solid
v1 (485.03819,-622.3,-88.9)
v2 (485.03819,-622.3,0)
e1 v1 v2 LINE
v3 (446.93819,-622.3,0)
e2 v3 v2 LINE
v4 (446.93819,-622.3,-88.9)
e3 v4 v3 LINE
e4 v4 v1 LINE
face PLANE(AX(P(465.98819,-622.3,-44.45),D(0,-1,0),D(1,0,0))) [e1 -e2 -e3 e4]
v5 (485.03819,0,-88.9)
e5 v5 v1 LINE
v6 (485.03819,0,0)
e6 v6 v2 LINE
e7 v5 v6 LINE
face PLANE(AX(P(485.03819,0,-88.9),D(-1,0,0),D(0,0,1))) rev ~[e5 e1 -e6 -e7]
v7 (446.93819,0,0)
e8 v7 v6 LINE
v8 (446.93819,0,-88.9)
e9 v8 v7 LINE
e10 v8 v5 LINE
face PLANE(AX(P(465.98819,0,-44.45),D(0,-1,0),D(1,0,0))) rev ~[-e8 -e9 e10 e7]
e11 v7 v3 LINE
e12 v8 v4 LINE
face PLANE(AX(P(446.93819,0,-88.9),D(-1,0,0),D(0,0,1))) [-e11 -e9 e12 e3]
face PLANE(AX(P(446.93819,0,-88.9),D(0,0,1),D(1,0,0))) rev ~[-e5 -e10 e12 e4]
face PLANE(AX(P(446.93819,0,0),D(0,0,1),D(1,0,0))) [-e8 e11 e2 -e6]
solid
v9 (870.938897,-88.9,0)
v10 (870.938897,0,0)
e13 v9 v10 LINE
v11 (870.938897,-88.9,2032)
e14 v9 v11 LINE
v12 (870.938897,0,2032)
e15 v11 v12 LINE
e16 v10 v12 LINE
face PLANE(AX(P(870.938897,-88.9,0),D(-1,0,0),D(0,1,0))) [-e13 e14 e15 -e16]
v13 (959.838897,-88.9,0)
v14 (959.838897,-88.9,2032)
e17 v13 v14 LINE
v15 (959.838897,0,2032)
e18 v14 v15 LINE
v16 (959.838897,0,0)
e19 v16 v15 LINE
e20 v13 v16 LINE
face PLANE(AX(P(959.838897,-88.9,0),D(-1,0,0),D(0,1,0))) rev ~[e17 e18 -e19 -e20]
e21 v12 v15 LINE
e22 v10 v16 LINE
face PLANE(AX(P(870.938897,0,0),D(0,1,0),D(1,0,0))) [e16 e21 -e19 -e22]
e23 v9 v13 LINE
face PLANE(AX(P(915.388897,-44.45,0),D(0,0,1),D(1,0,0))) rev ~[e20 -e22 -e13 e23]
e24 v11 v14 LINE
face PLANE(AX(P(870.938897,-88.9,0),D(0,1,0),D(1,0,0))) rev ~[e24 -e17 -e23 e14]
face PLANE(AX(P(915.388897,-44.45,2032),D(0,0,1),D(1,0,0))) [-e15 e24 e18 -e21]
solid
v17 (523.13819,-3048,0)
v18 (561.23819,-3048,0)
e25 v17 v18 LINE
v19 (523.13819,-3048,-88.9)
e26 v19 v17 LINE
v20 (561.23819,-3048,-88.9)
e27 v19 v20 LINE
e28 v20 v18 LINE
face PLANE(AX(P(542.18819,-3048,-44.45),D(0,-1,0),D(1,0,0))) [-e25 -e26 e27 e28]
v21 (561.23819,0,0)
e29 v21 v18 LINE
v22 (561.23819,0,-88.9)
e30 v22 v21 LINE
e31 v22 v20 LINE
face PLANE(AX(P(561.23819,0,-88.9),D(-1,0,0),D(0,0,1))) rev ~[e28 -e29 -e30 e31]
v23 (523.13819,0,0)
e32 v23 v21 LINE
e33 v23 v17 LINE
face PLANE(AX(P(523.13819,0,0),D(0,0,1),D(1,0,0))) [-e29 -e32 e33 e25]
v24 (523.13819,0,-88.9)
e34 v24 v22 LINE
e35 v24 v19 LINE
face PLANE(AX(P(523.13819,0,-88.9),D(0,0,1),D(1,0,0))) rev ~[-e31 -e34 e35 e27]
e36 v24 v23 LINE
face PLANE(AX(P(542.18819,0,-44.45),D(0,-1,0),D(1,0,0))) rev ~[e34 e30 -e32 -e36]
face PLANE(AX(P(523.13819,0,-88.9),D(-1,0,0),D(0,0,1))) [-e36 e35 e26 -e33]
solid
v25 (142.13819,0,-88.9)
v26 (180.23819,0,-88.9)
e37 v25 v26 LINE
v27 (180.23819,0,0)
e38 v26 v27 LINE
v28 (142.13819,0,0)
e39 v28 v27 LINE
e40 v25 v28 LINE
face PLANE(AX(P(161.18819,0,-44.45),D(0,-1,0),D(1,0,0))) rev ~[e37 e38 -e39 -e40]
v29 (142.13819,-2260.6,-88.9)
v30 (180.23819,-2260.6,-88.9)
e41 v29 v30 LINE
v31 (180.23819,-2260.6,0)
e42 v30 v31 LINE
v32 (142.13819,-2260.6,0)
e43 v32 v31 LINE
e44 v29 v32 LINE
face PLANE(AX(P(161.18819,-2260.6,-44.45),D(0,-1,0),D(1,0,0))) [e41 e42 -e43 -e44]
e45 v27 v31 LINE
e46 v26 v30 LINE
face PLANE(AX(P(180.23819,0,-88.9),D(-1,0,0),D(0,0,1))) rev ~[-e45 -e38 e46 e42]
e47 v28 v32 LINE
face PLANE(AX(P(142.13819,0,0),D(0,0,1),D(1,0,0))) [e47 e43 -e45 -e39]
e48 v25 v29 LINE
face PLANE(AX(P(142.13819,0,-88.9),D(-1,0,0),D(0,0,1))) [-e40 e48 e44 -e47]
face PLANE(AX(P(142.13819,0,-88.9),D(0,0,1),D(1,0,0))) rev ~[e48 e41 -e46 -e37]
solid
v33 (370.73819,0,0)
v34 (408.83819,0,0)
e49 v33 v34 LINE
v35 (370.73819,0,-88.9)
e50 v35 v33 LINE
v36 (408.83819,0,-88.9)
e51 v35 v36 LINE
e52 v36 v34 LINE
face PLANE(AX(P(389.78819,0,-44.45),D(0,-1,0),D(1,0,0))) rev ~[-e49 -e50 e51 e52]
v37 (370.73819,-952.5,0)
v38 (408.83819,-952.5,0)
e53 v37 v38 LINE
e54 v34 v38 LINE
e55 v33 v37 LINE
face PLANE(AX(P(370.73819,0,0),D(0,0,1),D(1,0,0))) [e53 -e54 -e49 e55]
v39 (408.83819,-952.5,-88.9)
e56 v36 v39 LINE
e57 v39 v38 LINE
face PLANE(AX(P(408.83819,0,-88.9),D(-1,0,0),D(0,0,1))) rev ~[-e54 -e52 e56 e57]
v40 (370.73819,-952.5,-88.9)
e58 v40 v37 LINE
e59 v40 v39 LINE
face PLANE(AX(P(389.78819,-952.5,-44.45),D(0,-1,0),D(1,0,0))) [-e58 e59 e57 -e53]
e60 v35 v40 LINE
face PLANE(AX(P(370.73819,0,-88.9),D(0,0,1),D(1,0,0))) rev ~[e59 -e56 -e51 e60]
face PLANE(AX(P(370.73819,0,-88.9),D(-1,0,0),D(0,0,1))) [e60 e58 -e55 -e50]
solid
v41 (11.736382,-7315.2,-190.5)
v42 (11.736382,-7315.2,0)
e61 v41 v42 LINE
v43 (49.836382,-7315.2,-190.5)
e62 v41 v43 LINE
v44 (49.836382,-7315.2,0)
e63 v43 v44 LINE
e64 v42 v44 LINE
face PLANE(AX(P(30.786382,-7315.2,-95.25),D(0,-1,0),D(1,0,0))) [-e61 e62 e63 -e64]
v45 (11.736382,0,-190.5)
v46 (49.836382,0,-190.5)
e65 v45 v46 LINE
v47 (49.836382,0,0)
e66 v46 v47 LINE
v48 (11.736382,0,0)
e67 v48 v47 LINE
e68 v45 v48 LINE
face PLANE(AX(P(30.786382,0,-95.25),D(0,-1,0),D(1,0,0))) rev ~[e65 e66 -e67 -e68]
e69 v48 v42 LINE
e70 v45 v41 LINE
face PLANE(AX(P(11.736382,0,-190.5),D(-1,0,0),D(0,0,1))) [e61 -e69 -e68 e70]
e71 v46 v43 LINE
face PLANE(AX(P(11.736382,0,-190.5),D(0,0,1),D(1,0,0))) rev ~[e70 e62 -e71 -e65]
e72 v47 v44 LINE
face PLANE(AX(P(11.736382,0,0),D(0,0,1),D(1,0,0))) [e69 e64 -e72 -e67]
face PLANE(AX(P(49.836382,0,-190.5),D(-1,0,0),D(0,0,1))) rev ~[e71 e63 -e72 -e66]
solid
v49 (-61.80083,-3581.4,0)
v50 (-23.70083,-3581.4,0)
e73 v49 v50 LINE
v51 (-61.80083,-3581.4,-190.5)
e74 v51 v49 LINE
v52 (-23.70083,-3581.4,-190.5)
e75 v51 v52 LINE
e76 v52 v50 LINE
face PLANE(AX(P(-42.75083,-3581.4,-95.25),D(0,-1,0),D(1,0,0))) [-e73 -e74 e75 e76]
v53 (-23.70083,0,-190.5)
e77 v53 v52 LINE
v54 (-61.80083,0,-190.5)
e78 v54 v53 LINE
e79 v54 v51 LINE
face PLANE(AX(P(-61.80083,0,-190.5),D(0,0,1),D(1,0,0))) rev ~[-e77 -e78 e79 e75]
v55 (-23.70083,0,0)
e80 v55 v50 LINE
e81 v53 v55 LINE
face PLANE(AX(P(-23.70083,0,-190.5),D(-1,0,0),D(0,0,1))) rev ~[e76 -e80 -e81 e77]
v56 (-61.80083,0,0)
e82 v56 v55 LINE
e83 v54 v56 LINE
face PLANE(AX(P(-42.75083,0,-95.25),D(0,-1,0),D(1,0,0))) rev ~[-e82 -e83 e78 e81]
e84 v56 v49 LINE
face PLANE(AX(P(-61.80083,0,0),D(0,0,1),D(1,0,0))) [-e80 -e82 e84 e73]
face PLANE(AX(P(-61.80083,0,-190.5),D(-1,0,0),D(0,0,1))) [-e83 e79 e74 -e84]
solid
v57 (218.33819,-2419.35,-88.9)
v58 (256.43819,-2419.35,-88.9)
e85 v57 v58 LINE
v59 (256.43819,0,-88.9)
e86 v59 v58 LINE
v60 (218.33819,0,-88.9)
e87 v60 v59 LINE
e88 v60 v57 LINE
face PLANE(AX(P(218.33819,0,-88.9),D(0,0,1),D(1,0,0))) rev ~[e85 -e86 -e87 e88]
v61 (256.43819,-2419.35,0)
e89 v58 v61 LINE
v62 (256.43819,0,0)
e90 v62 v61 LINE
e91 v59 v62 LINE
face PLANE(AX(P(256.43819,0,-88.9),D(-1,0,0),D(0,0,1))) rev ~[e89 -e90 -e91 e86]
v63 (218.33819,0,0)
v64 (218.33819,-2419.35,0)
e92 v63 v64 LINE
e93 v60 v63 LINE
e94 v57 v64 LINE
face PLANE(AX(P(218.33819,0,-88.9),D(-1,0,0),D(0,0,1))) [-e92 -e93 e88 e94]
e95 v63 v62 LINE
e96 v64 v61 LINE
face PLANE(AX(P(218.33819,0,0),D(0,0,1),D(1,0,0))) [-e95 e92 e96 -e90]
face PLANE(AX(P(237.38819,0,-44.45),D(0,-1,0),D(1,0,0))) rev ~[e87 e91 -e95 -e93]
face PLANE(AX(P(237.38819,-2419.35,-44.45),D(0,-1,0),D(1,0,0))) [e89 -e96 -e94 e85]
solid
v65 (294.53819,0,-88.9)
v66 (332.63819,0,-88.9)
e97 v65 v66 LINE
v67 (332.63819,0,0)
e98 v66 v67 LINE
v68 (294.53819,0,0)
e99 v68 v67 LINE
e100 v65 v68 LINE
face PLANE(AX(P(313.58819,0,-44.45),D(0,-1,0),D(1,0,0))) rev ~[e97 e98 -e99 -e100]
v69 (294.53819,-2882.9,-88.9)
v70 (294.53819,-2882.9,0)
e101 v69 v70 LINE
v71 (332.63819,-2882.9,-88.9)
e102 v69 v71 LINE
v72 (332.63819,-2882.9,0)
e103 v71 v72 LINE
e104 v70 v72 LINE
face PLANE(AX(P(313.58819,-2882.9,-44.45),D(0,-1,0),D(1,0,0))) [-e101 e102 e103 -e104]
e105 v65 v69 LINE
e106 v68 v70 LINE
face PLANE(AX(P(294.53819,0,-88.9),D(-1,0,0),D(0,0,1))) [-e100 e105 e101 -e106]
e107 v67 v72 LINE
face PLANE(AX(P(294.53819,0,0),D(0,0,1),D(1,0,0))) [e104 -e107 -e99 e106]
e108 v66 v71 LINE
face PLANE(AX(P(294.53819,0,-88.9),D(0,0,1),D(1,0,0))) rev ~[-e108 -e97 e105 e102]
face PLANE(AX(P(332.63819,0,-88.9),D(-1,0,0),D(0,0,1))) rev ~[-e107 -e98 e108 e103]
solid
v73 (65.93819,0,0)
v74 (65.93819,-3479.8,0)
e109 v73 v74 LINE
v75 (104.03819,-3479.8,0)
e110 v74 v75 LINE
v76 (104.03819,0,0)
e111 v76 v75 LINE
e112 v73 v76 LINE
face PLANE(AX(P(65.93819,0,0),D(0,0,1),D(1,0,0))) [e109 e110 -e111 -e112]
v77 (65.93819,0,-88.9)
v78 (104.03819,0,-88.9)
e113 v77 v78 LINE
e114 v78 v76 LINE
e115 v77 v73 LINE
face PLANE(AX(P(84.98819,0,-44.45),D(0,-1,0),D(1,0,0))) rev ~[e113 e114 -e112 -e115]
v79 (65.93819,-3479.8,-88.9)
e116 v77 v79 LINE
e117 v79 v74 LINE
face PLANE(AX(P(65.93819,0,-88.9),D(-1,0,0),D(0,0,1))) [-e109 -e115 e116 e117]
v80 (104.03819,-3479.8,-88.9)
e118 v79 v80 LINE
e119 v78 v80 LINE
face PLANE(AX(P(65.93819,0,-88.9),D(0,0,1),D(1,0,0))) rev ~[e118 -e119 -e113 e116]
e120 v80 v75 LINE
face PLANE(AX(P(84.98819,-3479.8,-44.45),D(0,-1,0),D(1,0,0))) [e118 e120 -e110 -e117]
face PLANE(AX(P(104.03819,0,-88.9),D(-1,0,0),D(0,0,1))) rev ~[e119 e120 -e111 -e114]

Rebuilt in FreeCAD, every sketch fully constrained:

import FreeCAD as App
import Part
import Sketcher
Q = App.Units.Quantity


def add_polygon(sketch, points):
    """Adds a closed chain of lines whose ends are joined by coincident constraints."""
    first, n = sketch.GeometryCount, len(points)
    for a, b in zip(points, points[1:] + points[:1]):
        sketch.addGeometry(Part.LineSegment(App.Vector(*a, 0), App.Vector(*b, 0)), False)
    for i in range(n):
        sketch.addConstraint(Sketcher.Constraint("Coincident", first + i, 2, first + (i + 1) % n, 1))

doc = App.newDocument("Part")
body = doc.addObject("PartDesign::Body", "Body")

sketch1 = body.newObject("Sketcher::SketchObject", "Sketch")
sketch1.AttachmentSupport = (doc.getObject("XZ_Plane"), [""])
sketch1.MapMode = "FlatFace"
add_polygon(sketch1, [(-62, 0), (-62, -190), (-24, -190), (-24, 0)])
sketch1.addConstraint([
    Sketcher.Constraint("Vertical", 0),
    Sketcher.Constraint("Horizontal", 1),
    Sketcher.Constraint("Vertical", 2),
    Sketcher.Constraint("Horizontal", 3),
    Sketcher.Constraint("PointOnObject", 2, 2, -1),
    Sketcher.Constraint("DistanceX", 1, 1, 1, 2, Q("1.5 in")),
    Sketcher.Constraint("DistanceY", 0, 2, 0, 1, Q("7.5 in")),
    Sketcher.Constraint("DistanceX", 0, 2, -1, 1, 61.80083),
])
pad1 = body.newObject("PartDesign::Pad", "Pad")
pad1.Profile = sketch1
pad1.Length = Q("141 in")
body2 = doc.addObject("PartDesign::Body", "Body001")

sketch2 = body2.newObject("Sketcher::SketchObject", "Sketch001")
sketch2.AttachmentSupport = (doc.getObject("XZ_Plane001"), [""])
sketch2.MapMode = "FlatFace"
add_polygon(sketch2, [(12, 0), (12, -190), (50, -190), (50, 0)])
sketch2.addConstraint([
    Sketcher.Constraint("Vertical", 0),
    Sketcher.Constraint("Horizontal", 1),
    Sketcher.Constraint("Vertical", 2),
    Sketcher.Constraint("Horizontal", 3),
    Sketcher.Constraint("PointOnObject", 2, 2, -1),
    Sketcher.Constraint("DistanceX", 1, 1, 1, 2, Q("1.5 in")),
    Sketcher.Constraint("DistanceY", 0, 2, 0, 1, Q("7.5 in")),
    Sketcher.Constraint("DistanceX", -1, 1, 0, 2, 11.736382),
])
pad2 = body2.newObject("PartDesign::Pad", "Pad001")
pad2.Profile = sketch2
pad2.Length = Q("288 in")
body3 = doc.addObject("PartDesign::Body", "Body002")

sketch3 = body3.newObject("Sketcher::SketchObject", "Sketch002")
sketch3.AttachmentSupport = (doc.getObject("XZ_Plane002"), [""])
sketch3.MapMode = "FlatFace"
add_polygon(sketch3, [(66, 0), (66, -89), (104, -89), (104, 0)])
sketch3.addConstraint([
    Sketcher.Constraint("Vertical", 0),
    Sketcher.Constraint("Horizontal", 1),
    Sketcher.Constraint("Vertical", 2),
    Sketcher.Constraint("Horizontal", 3),
    Sketcher.Constraint("PointOnObject", 2, 2, -1),
    Sketcher.Constraint("DistanceX", 1, 1, 1, 2, Q("1.5 in")),
    Sketcher.Constraint("DistanceY", 0, 2, 0, 1, Q("3.5 in")),
    Sketcher.Constraint("DistanceX", -1, 1, 0, 2, 65.93819),
])
pad3 = body3.newObject("PartDesign::Pad", "Pad002")
pad3.Profile = sketch3
pad3.Length = Q("137 in")
body4 = doc.addObject("PartDesign::Body", "Body003")

sketch4 = body4.newObject("Sketcher::SketchObject", "Sketch003")
sketch4.AttachmentSupport = (doc.getObject("XZ_Plane003"), [""])
sketch4.MapMode = "FlatFace"
add_polygon(sketch4, [(142, 0), (142, -89), (180, -89), (180, 0)])
sketch4.addConstraint([
    Sketcher.Constraint("Vertical", 0),
    Sketcher.Constraint("Horizontal", 1),
    Sketcher.Constraint("Vertical", 2),
    Sketcher.Constraint("Horizontal", 3),
    Sketcher.Constraint("PointOnObject", 2, 2, -1),
    Sketcher.Constraint("DistanceX", 1, 1, 1, 2, Q("1.5 in")),
    Sketcher.Constraint("DistanceY", 0, 2, 0, 1, Q("3.5 in")),
    Sketcher.Constraint("DistanceX", -1, 1, 0, 2, 142.13819),
])
pad4 = body4.newObject("PartDesign::Pad", "Pad003")
pad4.Profile = sketch4
pad4.Length = Q("89 in")
body5 = doc.addObject("PartDesign::Body", "Body004")

sketch5 = body5.newObject("Sketcher::SketchObject", "Sketch004")
sketch5.AttachmentSupport = (doc.getObject("XZ_Plane004"), [""])
sketch5.MapMode = "FlatFace"
add_polygon(sketch5, [(218, 0), (218, -89), (256, -89), (256, 0)])
sketch5.addConstraint([
    Sketcher.Constraint("Vertical", 0),
    Sketcher.Constraint("Horizontal", 1),
    Sketcher.Constraint("Vertical", 2),
    Sketcher.Constraint("Horizontal", 3),
    Sketcher.Constraint("PointOnObject", 2, 2, -1),
    Sketcher.Constraint("DistanceX", 1, 1, 1, 2, Q("1.5 in")),
    Sketcher.Constraint("DistanceY", 0, 2, 0, 1, Q("3.5 in")),
    Sketcher.Constraint("DistanceX", -1, 1, 0, 2, 218.33819),
])
pad5 = body5.newObject("PartDesign::Pad", "Pad004")
pad5.Profile = sketch5
pad5.Length = Q("95.25 in")
body6 = doc.addObject("PartDesign::Body", "Body005")

sketch6 = body6.newObject("Sketcher::SketchObject", "Sketch005")
sketch6.AttachmentSupport = (doc.getObject("XZ_Plane005"), [""])
sketch6.MapMode = "FlatFace"
add_polygon(sketch6, [(295, 0), (295, -89), (333, -89), (333, 0)])
sketch6.addConstraint([
    Sketcher.Constraint("Vertical", 0),
    Sketcher.Constraint("Horizontal", 1),
    Sketcher.Constraint("Vertical", 2),
    Sketcher.Constraint("Horizontal", 3),
    Sketcher.Constraint("PointOnObject", 2, 2, -1),
    Sketcher.Constraint("DistanceX", 1, 1, 1, 2, Q("1.5 in")),
    Sketcher.Constraint("DistanceY", 0, 2, 0, 1, Q("3.5 in")),
    Sketcher.Constraint("DistanceX", -1, 1, 0, 2, 294.53819),
])
pad6 = body6.newObject("PartDesign::Pad", "Pad005")
pad6.Profile = sketch6
pad6.Length = Q("113.5 in")
body7 = doc.addObject("PartDesign::Body", "Body006")

sketch7 = body7.newObject("Sketcher::SketchObject", "Sketch006")
sketch7.AttachmentSupport = (doc.getObject("XZ_Plane006"), [""])
sketch7.MapMode = "FlatFace"
add_polygon(sketch7, [(371, 0), (371, -89), (409, -89), (409, 0)])
sketch7.addConstraint([
    Sketcher.Constraint("Vertical", 0),
    Sketcher.Constraint("Horizontal", 1),
    Sketcher.Constraint("Vertical", 2),
    Sketcher.Constraint("Horizontal", 3),
    Sketcher.Constraint("PointOnObject", 2, 2, -1),
    Sketcher.Constraint("DistanceX", 1, 1, 1, 2, Q("1.5 in")),
    Sketcher.Constraint("DistanceY", 0, 2, 0, 1, Q("3.5 in")),
    Sketcher.Constraint("DistanceX", -1, 1, 0, 2, 370.73819),
])
pad7 = body7.newObject("PartDesign::Pad", "Pad006")
pad7.Profile = sketch7
pad7.Length = Q("37.5 in")
body8 = doc.addObject("PartDesign::Body", "Body007")

sketch8 = body8.newObject("Sketcher::SketchObject", "Sketch007")
sketch8.AttachmentSupport = (doc.getObject("XZ_Plane007"), [""])
sketch8.MapMode = "FlatFace"
add_polygon(sketch8, [(447, 0), (447, -89), (485, -89), (485, 0)])
sketch8.addConstraint([
    Sketcher.Constraint("Vertical", 0),
    Sketcher.Constraint("Horizontal", 1),
    Sketcher.Constraint("Vertical", 2),
    Sketcher.Constraint("Horizontal", 3),
    Sketcher.Constraint("PointOnObject", 2, 2, -1),
    Sketcher.Constraint("DistanceX", 1, 1, 1, 2, Q("1.5 in")),
    Sketcher.Constraint("DistanceY", 0, 2, 0, 1, Q("3.5 in")),
    Sketcher.Constraint("DistanceX", -1, 1, 0, 2, 446.93819),
])
pad8 = body8.newObject("PartDesign::Pad", "Pad007")
pad8.Profile = sketch8
pad8.Length = Q("24.5 in")
body9 = doc.addObject("PartDesign::Body", "Body008")

sketch9 = body9.newObject("Sketcher::SketchObject", "Sketch008")
sketch9.AttachmentSupport = (doc.getObject("XY_Plane008"), [""])
sketch9.MapMode = "FlatFace"
add_polygon(sketch9, [(871, 0), (871, -89), (960, -89), (960, 0)])
sketch9.addConstraint([
    Sketcher.Constraint("Vertical", 0),
    Sketcher.Constraint("Horizontal", 1),
    Sketcher.Constraint("Vertical", 2),
    Sketcher.Constraint("Horizontal", 3),
    Sketcher.Constraint("PointOnObject", 2, 2, -1),
    Sketcher.Constraint("Equal", 3, 0),
    Sketcher.Constraint("DistanceX", 1, 1, 1, 2, Q("3.5 in")),
    Sketcher.Constraint("DistanceX", -1, 1, 0, 2, 870.938897),
])
pad9 = body9.newObject("PartDesign::Pad", "Pad008")
pad9.Profile = sketch9
pad9.Length = Q("80 in")
body10 = doc.addObject("PartDesign::Body", "Body009")

sketch10 = body10.newObject("Sketcher::SketchObject", "Sketch009")
sketch10.AttachmentSupport = (doc.getObject("XZ_Plane009"), [""])
sketch10.MapMode = "FlatFace"
add_polygon(sketch10, [(523, 0), (523, -89), (561, -89), (561, 0)])
sketch10.addConstraint([
    Sketcher.Constraint("Vertical", 0),
    Sketcher.Constraint("Horizontal", 1),
    Sketcher.Constraint("Vertical", 2),
    Sketcher.Constraint("Horizontal", 3),
    Sketcher.Constraint("PointOnObject", 2, 2, -1),
    Sketcher.Constraint("DistanceX", 1, 1, 1, 2, Q("1.5 in")),
    Sketcher.Constraint("DistanceY", 0, 2, 0, 1, Q("3.5 in")),
    Sketcher.Constraint("DistanceX", -1, 1, 0, 2, 523.13819),
])
pad10 = body10.newObject("PartDesign::Pad", "Pad009")
pad10.Profile = sketch10
pad10.Length = Q("120 in")

doc.recompute()
